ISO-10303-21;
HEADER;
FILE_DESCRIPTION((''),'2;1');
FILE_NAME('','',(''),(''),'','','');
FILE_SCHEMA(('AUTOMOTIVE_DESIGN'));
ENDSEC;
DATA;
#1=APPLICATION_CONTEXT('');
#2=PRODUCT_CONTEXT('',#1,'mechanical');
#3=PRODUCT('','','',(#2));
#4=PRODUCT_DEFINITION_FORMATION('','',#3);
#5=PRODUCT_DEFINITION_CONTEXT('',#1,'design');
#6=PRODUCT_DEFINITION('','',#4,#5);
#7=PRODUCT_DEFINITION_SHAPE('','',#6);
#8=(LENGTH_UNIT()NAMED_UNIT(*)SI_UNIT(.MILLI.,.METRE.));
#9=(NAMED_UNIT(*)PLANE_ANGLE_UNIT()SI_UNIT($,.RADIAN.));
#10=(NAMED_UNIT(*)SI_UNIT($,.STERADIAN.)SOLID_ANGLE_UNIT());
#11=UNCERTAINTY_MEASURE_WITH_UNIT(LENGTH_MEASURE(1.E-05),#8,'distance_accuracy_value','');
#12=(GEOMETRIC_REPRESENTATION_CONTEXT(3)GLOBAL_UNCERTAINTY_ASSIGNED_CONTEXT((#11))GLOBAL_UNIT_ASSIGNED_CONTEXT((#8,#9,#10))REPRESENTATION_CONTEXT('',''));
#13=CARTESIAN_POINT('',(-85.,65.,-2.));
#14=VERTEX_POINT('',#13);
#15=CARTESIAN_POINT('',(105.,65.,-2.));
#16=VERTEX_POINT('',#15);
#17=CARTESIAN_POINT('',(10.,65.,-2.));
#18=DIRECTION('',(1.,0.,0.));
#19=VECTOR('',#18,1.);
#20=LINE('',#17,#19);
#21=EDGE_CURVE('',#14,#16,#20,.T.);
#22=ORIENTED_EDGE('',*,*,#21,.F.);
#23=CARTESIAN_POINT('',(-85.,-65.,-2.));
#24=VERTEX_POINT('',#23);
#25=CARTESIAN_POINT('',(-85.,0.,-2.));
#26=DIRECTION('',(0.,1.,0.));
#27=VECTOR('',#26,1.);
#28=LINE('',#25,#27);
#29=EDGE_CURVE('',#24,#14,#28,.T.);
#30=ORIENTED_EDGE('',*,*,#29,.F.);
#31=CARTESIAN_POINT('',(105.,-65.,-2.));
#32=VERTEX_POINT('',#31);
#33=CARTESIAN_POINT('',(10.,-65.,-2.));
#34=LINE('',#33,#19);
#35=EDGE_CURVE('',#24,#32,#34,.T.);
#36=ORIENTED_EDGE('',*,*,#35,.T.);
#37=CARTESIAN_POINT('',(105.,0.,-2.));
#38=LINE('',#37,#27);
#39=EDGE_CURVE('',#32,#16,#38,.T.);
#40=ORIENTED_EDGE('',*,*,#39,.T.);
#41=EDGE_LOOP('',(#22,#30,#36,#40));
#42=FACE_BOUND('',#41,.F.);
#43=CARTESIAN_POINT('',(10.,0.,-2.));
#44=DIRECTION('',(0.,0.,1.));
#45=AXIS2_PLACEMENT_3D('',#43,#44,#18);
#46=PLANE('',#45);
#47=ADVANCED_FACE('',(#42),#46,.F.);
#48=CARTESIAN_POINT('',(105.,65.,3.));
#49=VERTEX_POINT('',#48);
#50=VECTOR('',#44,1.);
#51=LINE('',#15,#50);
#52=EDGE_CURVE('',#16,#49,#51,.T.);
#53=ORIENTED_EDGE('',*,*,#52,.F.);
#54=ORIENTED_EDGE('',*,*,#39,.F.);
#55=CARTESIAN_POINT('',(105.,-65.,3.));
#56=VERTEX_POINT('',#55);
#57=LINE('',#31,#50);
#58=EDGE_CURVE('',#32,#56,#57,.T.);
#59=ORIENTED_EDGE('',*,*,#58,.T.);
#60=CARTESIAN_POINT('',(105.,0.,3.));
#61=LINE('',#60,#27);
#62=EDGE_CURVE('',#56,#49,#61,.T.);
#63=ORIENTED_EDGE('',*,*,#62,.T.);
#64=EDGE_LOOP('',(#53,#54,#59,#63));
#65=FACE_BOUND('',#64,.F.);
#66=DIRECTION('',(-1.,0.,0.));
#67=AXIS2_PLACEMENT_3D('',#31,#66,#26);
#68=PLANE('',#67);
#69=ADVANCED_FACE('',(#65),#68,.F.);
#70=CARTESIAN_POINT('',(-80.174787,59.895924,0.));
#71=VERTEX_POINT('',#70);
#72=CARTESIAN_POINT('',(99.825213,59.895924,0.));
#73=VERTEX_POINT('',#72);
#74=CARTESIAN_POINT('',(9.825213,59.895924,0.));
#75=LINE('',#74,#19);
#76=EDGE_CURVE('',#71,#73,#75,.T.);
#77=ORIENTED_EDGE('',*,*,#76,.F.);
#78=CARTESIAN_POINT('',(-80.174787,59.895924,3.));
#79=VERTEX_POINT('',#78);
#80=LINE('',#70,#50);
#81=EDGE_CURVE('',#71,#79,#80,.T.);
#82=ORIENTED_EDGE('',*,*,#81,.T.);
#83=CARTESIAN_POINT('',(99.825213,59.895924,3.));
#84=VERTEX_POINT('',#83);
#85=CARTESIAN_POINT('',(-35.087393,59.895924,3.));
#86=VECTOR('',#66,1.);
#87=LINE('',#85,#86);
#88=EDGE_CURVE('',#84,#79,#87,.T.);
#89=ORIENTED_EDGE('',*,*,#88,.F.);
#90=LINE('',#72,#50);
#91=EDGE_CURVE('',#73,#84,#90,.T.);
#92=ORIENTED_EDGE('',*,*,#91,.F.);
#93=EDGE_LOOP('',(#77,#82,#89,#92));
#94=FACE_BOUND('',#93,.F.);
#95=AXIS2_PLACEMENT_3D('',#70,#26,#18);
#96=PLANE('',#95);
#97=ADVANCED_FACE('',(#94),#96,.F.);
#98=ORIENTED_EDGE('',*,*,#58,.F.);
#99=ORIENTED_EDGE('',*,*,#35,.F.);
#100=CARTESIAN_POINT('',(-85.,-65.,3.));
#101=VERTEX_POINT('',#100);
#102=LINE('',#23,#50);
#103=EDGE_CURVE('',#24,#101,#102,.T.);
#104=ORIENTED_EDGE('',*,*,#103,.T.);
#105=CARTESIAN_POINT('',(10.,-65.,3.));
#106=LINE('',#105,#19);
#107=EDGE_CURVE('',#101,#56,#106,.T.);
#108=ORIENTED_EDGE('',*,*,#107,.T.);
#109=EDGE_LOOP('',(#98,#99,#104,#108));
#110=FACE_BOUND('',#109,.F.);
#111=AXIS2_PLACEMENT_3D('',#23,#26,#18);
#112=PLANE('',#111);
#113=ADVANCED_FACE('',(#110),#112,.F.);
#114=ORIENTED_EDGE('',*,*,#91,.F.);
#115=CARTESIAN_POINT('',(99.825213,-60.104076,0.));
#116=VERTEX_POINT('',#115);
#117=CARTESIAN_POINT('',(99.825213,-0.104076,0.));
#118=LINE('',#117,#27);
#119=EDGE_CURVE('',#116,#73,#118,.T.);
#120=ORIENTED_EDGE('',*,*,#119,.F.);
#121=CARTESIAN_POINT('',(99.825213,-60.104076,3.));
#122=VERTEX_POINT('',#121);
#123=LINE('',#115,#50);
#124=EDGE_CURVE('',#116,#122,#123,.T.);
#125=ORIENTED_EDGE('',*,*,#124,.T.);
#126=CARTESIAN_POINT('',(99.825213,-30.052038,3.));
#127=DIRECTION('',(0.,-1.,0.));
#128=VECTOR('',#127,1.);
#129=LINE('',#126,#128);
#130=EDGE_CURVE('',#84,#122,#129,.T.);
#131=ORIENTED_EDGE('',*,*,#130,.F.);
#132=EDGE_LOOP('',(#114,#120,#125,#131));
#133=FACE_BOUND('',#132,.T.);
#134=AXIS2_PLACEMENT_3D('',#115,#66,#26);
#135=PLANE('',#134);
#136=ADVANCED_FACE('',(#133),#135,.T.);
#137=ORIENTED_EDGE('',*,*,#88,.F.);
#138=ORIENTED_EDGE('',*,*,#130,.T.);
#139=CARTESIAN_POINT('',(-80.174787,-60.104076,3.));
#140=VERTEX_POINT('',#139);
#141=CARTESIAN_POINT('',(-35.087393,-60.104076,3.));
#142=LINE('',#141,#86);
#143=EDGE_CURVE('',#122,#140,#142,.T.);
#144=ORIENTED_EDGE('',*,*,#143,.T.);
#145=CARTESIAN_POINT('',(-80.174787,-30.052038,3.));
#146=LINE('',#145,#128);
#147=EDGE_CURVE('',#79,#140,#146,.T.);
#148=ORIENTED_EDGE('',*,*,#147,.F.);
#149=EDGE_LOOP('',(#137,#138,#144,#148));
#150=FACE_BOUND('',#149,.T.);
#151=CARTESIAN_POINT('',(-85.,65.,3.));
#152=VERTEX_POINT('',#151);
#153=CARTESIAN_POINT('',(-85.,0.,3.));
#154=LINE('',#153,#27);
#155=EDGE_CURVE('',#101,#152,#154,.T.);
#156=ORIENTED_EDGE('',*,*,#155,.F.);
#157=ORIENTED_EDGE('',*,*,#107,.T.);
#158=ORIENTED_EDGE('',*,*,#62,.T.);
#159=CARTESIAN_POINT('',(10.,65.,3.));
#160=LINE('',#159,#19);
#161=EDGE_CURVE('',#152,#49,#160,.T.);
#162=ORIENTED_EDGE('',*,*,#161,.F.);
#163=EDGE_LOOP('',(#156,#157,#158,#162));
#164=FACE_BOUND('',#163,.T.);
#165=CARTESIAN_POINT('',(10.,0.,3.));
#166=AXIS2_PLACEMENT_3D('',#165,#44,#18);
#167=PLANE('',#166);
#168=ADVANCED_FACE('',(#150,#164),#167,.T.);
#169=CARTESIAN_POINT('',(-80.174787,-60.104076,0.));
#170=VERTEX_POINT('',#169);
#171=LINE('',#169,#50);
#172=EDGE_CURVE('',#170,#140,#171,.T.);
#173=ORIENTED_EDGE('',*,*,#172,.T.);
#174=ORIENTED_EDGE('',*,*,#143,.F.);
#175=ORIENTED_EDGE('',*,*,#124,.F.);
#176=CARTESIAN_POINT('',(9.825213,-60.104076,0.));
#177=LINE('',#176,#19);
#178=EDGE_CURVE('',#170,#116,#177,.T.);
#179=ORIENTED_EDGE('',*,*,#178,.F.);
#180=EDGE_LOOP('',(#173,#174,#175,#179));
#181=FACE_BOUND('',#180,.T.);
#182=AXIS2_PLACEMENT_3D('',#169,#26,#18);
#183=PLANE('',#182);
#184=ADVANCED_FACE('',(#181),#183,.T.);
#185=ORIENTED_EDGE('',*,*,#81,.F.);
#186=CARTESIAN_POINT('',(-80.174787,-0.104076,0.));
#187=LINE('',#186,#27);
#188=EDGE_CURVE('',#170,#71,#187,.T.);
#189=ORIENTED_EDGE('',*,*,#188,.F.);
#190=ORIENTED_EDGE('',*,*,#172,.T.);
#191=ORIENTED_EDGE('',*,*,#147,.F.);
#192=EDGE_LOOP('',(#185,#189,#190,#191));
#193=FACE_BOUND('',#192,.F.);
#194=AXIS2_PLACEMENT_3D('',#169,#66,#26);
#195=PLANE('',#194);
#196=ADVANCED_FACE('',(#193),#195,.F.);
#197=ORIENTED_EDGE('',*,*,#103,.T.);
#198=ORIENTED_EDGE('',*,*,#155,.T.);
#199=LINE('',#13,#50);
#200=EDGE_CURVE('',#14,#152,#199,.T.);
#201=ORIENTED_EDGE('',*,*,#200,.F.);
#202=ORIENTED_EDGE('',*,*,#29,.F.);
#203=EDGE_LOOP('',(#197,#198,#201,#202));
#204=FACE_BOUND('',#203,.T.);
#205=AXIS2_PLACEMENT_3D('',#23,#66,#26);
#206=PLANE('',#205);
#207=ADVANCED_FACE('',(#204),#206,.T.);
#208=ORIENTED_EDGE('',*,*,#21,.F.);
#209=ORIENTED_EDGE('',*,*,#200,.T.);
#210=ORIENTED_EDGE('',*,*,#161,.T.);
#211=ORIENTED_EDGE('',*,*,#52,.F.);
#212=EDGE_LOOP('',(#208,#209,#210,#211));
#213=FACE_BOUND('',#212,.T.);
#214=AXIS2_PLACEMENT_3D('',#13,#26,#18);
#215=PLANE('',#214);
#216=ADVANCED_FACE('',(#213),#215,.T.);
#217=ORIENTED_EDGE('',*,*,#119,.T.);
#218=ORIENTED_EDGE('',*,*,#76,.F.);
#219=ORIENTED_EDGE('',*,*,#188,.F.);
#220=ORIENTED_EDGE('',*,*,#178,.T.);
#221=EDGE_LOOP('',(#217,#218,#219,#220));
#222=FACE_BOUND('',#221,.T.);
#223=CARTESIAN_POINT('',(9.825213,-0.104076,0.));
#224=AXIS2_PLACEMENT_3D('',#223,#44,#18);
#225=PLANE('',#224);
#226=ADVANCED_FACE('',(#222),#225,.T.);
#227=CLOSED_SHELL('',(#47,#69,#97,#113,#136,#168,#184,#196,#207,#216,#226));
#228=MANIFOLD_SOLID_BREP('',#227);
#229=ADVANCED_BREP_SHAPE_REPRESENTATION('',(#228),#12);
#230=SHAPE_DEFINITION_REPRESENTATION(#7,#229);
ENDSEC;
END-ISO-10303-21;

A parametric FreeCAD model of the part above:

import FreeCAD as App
import Part
import Sketcher
from FreeCAD import Vector


def add_polygon(sketch, points):
    """Adds a closed chain of lines whose ends are joined by coincident constraints."""
    first, n = sketch.GeometryCount, len(points)
    for a, b in zip(points, points[1:] + points[:1]):
        sketch.addGeometry(Part.LineSegment(App.Vector(*a, 0), App.Vector(*b, 0)), False)
    for i in range(n):
        sketch.addConstraint(Sketcher.Constraint("Coincident", first + i, 2, first + (i + 1) % n, 1))

doc = App.newDocument("Part")
body = doc.addObject("PartDesign::Body", "Body")

# Sketch on XY plane
sketch1 = body.newObject("Sketcher::SketchObject", "Sketch")
sketch1.AttachmentSupport = (doc.getObject("XY_Plane"), [""])
sketch1.MapMode = "FlatFace"
sketch1.AttachmentOffset = App.Placement(Vector(0, 0, 3), App.Rotation())
add_polygon(sketch1, [(-70, 49), (-70, -51), (90, -51), (90, 49)])  # lines 0-3
sketch1.addConstraint(Sketcher.Constraint("Vertical", 0))
sketch1.addConstraint(Sketcher.Constraint("Horizontal", 1))
sketch1.addConstraint(Sketcher.Constraint("Vertical", 2))
sketch1.addConstraint(Sketcher.Constraint("Horizontal", 3))
sketch1.addConstraint(Sketcher.Constraint("DistanceX", 1, 1, 1, 2, 160.0))
sketch1.addConstraint(Sketcher.Constraint("DistanceY", 0, 2, 0, 1, 100.0))
sketch1.addConstraint(Sketcher.Constraint("DistanceX", 0, 2, -1, 1, 69.730779))
sketch1.addConstraint(Sketcher.Constraint("DistanceY", 0, 2, -1, 1, 50.548084))
pad1 = body.newObject("PartDesign::Pad", "Pad")
pad1.Profile = sketch1
pad1.Length = 2
body2 = doc.addObject("PartDesign::Body", "Body001")

# Sketch on XY plane
sketch2 = body2.newObject("Sketcher::SketchObject", "Sketch001")
sketch2.AttachmentSupport = (doc.getObject("XY_Plane001"), [""])
sketch2.MapMode = "FlatFace"
add_polygon(sketch2, [(-80, 60), (-80, -60), (100, -60), (100, 60)])  # lines 0-3
sketch2.addConstraint(Sketcher.Constraint("Vertical", 0))
sketch2.addConstraint(Sketcher.Constraint("Horizontal", 1))
sketch2.addConstraint(Sketcher.Constraint("Vertical", 2))
sketch2.addConstraint(Sketcher.Constraint("Horizontal", 3))
sketch2.addConstraint(Sketcher.Constraint("DistanceX", 1, 1, 1, 2, 180.0))
sketch2.addConstraint(Sketcher.Constraint("DistanceY", 0, 2, 0, 1, 120.0))
sketch2.addConstraint(Sketcher.Constraint("DistanceX", 0, 2, -1, 1, 80.174787))
sketch2.addConstraint(Sketcher.Constraint("DistanceY", 0, 2, -1, 1, 60.104076))
pad2 = body2.newObject("PartDesign::Pad", "Pad001")
pad2.Profile = sketch2
pad2.Length = 5
doc.recompute()

boolean = body2.newObject("PartDesign::Boolean", "Boolean")
boolean.Type = "Cut"
boolean.addObjects([body])
body3 = doc.addObject("PartDesign::Body", "Body002")

# Sketch on XY plane
sketch3 = body3.newObject("Sketcher::SketchObject", "Sketch002")
sketch3.AttachmentSupport = (doc.getObject("XY_Plane002"), [""])
sketch3.MapMode = "FlatFace"
sketch3.AttachmentOffset = App.Placement(Vector(0, 0, -2), App.Rotation())
add_polygon(sketch3, [(-85, 65), (-85, -65), (105, -65), (105, 65)])  # lines 0-3
sketch3.addConstraint(Sketcher.Constraint("Vertical", 0))
sketch3.addConstraint(Sketcher.Constraint("Horizontal", 1))
sketch3.addConstraint(Sketcher.Constraint("Vertical", 2))
sketch3.addConstraint(Sketcher.Constraint("Horizontal", 3))
sketch3.addConstraint(Sketcher.Constraint("DistanceX", 1, 1, 1, 2, 190.0))
sketch3.addConstraint(Sketcher.Constraint("DistanceY", 0, 2, 0, 1, 130.0))
sketch3.addConstraint(Sketcher.Constraint("DistanceX", 0, 2, -1, 1, 85.0))
sketch3.addConstraint(Sketcher.Constraint("DistanceY", 0, 2, -1, 1, 65.0))
pad3 = body3.newObject("PartDesign::Pad", "Pad002")
pad3.Profile = sketch3
pad3.Length = 5
doc.recompute()

boolean2 = body3.newObject("PartDesign::Boolean", "Boolean001")
boolean2.Type = "Cut"
boolean2.addObjects([body2])

doc.recompute()
